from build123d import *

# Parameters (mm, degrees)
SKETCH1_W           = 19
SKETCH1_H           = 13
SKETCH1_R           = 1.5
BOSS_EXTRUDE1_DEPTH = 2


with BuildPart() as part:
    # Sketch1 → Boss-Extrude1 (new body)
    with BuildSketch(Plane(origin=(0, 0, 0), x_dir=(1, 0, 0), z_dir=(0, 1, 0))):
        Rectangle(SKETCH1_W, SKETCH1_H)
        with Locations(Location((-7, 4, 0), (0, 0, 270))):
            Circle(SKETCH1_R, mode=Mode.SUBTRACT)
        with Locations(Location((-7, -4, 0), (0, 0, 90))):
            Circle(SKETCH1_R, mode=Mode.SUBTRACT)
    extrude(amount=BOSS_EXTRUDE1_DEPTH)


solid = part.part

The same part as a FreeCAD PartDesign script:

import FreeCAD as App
import Part
import Sketcher
from FreeCAD import Vector

doc = App.newDocument("Part")
body = doc.addObject("PartDesign::Body", "Body")

sketch1 = doc.addObject("Sketcher::SketchObject", "Sketch")
body.addObject(sketch1)
sketch1.AttachmentSupport = (doc.XZ_Plane, [""])
sketch1.MapMode = "FlatFace"
sketch1.addGeometry(Part.LineSegment(Vector(-9.5, -6.5, 0), Vector(-9.5, 6.5, 0)), False)
sketch1.addGeometry(Part.LineSegment(Vector(-9.5, 6.5, 0), Vector(9.5, 6.5, 0)), False)
sketch1.addGeometry(Part.LineSegment(Vector(9.5, 6.5, 0), Vector(9.5, -6.5, 0)), False)
sketch1.addGeometry(Part.LineSegment(Vector(9.5, -6.5, 0), Vector(-9.5, -6.5, 0)), False)
sketch1.addGeometry(Part.Circle(Vector(-7, 4, 0), Vector(0, 0, 1), 1.5), False)
sketch1.addGeometry(Part.Circle(Vector(-7, -4, 0), Vector(0, 0, 1), 1.5), False)
sketch1.addConstraint(Sketcher.Constraint("Coincident", 0, 2, 1, 1))
sketch1.addConstraint(Sketcher.Constraint("Coincident", 1, 2, 2, 1))
sketch1.addConstraint(Sketcher.Constraint("Coincident", 2, 2, 3, 1))
sketch1.addConstraint(Sketcher.Constraint("Coincident", 3, 2, 0, 1))
sketch1.addConstraint(Sketcher.Constraint("Vertical", 0))
sketch1.addConstraint(Sketcher.Constraint("Horizontal", 1))
sketch1.addConstraint(Sketcher.Constraint("Vertical", 2))
sketch1.addConstraint(Sketcher.Constraint("Horizontal", 3))
sketch1.addConstraint(Sketcher.Constraint("Equal", 4, 5))
sketch1.addConstraint(Sketcher.Constraint("Symmetric", 0, 2, 2, 2, -1, 1))
sketch1.addConstraint(Sketcher.Constraint("Symmetric", 4, 3, 5, 3, -1))
sketch1.addConstraint(Sketcher.Constraint("Diameter", 4, 3.0))
sketch1.addConstraint(Sketcher.Constraint("DistanceX", 1, 1, 1, 2, 19.0))
sketch1.addConstraint(Sketcher.Constraint("DistanceY", 0, 1, 0, 2, 13.0))
sketch1.addConstraint(Sketcher.Constraint("DistanceX", 4, 3, -1, 1, 7.0))
sketch1.addConstraint(Sketcher.Constraint("DistanceY", -1, 1, 4, 3, 4.0))
pad1 = doc.addObject("PartDesign::Pad", "Pad")
body.addObject(pad1)
pad1.Profile = sketch1
pad1.Length = 2
pad1.Reversed = True

doc.recompute()
